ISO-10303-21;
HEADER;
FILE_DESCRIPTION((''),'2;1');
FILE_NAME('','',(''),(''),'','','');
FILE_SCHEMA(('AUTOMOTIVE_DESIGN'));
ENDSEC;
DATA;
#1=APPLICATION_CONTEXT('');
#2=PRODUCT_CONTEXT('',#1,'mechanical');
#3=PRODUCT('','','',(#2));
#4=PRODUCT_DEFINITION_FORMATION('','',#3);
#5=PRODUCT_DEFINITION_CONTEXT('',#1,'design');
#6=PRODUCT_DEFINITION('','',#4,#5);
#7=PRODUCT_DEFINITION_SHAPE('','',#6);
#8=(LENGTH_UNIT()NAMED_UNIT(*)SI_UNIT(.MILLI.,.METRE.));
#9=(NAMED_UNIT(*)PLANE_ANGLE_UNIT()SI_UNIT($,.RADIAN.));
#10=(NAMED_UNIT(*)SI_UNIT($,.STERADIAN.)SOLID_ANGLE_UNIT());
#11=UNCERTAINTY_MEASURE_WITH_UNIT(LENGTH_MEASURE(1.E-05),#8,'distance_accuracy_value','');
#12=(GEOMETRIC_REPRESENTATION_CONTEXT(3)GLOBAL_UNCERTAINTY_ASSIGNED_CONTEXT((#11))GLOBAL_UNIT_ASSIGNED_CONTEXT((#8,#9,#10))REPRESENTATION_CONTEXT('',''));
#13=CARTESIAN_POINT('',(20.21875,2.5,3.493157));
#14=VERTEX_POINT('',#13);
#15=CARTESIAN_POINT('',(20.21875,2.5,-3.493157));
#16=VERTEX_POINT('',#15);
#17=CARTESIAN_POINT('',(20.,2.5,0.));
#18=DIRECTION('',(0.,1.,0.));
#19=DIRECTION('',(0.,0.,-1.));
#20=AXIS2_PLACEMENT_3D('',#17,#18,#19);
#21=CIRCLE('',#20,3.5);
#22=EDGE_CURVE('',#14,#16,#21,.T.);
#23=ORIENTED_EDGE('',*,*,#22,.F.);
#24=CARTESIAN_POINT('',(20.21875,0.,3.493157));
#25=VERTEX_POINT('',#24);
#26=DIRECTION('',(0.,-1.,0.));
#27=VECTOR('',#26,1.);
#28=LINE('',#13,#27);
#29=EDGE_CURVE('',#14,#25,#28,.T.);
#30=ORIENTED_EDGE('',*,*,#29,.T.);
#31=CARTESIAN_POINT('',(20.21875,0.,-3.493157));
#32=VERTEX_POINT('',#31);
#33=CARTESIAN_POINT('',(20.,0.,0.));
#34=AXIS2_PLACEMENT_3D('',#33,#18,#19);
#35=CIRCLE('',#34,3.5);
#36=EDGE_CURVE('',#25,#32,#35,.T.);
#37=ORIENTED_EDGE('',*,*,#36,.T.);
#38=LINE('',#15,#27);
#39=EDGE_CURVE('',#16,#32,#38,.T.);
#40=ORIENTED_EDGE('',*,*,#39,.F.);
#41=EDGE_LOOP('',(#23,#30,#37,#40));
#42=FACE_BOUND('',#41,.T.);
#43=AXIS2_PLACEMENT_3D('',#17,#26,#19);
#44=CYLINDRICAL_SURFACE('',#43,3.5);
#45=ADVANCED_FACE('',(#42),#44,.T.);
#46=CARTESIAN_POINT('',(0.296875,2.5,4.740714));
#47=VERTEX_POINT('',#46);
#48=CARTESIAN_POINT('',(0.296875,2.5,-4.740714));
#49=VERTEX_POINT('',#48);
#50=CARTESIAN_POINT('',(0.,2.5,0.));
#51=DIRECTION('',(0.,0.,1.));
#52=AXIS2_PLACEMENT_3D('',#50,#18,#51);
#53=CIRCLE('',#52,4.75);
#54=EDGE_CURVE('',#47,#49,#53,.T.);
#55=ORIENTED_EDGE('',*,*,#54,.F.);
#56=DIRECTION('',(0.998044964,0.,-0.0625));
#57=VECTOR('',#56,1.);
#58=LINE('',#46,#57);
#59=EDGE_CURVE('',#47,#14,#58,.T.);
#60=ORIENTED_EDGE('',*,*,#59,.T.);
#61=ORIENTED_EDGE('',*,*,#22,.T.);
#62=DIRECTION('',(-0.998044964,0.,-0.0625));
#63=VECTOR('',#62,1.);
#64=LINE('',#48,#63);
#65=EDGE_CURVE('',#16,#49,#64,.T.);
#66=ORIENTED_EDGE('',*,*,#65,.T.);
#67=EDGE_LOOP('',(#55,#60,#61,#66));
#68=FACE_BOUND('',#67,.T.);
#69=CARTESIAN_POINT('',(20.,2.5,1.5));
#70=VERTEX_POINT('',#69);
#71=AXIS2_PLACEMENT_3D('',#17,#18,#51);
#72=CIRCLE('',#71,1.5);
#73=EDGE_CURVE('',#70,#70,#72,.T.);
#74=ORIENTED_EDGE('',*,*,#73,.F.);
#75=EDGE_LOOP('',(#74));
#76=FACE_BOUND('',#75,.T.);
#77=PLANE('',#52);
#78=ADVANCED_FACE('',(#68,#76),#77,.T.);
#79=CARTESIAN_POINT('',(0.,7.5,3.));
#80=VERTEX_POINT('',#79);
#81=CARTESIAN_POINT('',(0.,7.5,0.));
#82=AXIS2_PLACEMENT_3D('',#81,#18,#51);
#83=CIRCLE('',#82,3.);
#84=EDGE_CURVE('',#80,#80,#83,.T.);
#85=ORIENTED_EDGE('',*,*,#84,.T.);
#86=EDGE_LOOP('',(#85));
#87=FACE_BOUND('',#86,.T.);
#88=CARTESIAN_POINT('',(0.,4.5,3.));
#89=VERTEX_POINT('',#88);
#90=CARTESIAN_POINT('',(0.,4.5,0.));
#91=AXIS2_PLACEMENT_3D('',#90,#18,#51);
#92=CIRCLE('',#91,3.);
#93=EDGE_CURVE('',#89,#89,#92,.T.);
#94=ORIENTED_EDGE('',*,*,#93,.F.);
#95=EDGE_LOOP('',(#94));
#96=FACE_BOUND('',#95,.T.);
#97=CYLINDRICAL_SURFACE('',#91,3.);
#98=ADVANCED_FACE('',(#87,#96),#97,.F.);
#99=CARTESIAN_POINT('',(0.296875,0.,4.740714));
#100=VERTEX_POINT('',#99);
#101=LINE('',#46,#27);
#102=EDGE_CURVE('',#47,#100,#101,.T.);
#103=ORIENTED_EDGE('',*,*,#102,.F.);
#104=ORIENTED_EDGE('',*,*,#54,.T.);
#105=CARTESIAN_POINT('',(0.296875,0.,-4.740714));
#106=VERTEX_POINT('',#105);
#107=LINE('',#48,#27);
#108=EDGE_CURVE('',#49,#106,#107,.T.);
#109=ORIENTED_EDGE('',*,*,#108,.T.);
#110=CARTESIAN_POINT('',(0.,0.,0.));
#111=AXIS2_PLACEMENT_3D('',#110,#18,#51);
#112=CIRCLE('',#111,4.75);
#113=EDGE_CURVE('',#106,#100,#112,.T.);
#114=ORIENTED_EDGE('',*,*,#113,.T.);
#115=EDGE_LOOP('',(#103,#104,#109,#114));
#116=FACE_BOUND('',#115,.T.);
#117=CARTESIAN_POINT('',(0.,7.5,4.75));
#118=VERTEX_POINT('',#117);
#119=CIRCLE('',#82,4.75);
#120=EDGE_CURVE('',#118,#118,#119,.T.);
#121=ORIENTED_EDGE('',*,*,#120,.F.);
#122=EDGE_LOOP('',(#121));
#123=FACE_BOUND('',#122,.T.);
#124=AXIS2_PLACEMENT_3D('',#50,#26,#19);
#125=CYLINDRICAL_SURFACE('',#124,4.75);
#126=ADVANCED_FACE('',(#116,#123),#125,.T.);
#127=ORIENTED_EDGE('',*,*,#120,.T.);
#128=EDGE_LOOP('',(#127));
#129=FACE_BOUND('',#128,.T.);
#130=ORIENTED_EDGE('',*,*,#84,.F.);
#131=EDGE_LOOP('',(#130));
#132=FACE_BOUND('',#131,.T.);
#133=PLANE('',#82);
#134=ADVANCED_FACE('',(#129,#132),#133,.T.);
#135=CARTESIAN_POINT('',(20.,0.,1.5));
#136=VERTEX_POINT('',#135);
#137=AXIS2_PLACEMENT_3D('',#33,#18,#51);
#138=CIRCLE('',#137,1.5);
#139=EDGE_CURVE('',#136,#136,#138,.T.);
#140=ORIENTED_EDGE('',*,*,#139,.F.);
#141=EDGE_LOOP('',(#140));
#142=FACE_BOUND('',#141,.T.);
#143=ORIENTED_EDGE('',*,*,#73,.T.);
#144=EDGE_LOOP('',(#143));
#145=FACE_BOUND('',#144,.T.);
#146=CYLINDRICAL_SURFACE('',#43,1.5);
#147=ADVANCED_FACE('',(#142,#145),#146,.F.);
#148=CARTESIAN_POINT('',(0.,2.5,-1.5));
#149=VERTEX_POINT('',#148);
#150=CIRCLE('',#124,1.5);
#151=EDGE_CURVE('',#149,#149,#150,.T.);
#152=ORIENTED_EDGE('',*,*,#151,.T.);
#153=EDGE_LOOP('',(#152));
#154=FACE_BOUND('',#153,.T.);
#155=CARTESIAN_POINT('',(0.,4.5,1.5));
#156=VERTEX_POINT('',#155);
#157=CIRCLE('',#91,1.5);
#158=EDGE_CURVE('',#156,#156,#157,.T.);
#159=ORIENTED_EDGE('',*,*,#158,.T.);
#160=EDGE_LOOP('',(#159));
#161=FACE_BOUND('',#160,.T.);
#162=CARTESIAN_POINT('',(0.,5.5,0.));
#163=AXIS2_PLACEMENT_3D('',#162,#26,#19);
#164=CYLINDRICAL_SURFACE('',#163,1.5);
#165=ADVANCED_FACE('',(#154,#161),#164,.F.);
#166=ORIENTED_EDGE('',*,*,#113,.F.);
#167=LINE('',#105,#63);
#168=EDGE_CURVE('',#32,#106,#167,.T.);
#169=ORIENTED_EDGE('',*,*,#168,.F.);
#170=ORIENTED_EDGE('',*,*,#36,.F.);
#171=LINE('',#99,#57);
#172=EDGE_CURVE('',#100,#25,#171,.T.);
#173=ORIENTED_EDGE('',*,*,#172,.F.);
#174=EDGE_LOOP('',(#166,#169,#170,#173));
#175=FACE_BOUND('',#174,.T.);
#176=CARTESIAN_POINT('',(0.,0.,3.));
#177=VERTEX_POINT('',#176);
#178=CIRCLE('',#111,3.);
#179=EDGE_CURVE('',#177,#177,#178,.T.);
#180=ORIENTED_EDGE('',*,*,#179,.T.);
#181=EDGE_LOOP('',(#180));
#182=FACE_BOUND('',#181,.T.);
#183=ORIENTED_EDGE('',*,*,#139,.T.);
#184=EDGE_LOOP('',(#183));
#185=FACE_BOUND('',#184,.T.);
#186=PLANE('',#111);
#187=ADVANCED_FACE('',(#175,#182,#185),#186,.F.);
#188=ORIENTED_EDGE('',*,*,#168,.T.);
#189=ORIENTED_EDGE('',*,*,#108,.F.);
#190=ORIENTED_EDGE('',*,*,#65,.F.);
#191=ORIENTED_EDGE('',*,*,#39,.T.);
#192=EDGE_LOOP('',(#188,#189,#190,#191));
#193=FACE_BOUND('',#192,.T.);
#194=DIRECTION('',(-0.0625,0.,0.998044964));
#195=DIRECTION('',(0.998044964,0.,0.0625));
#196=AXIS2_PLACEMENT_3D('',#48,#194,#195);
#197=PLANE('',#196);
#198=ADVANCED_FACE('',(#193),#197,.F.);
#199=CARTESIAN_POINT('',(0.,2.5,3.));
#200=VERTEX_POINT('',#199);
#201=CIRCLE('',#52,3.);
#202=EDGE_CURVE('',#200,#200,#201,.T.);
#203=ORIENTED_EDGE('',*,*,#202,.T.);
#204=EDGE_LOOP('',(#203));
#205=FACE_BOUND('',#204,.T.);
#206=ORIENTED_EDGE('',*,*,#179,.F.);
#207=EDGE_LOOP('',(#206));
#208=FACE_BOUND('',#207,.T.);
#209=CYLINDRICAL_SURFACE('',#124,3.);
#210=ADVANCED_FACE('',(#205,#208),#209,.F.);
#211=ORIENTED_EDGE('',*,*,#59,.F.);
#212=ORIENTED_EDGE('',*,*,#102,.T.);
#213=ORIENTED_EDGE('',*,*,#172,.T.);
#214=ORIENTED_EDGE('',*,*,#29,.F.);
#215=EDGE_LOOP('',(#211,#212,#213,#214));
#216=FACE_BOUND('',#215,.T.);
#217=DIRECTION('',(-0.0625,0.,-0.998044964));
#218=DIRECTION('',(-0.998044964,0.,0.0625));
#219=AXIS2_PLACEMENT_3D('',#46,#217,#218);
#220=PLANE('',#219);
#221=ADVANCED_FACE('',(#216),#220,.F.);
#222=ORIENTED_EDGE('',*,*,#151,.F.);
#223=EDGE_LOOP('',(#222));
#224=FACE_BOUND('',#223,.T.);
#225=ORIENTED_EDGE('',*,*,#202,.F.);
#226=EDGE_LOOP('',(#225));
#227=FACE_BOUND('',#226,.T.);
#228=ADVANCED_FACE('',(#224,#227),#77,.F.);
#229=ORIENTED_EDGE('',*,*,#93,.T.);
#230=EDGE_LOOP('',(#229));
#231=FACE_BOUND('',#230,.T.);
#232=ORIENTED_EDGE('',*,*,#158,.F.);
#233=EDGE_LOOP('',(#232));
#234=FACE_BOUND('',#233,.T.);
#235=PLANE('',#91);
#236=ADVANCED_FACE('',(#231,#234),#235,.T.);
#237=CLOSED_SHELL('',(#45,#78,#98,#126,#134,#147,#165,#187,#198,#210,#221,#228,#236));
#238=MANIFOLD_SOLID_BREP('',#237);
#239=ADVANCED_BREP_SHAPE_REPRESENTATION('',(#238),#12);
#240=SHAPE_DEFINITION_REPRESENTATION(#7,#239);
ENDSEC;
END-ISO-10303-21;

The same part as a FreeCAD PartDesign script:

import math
import FreeCAD as App
import Part
import Sketcher
from FreeCAD import Vector

doc = App.newDocument("Part")
body = doc.addObject("PartDesign::Body", "Body")

sketch1 = doc.addObject("Sketcher::SketchObject", "Sketch")
body.addObject(sketch1)
sketch1.AttachmentSupport = (doc.XZ_Plane, [""])
sketch1.MapMode = "FlatFace"
sketch1.addGeometry(Part.LineSegment(Vector(20.2, -3.5, 0), Vector(0.3, -4.7, 0)), False)
sketch1.addGeometry(Part.ArcOfCircle(Part.Circle(Vector(0, 0, 0), Vector(0, 0, 1), 4.8), math.radians(86), math.radians(274)), False)
sketch1.addGeometry(Part.LineSegment(Vector(0.3, 4.7, 0), Vector(20.2, 3.5, 0)), False)
sketch1.addGeometry(Part.ArcOfCircle(Part.Circle(Vector(20, 0, 0), Vector(0, 0, 1), 3.5), math.radians(-86), math.radians(86)), False)
sketch1.addGeometry(Part.Circle(Vector(20, 0, 0), Vector(0, 0, 1), 1.5), False)
sketch1.addGeometry(Part.Circle(Vector(0, 0, 0), Vector(0, 0, 1), 3), False)
sketch1.addConstraint(Sketcher.Constraint("Tangent", 0, 2, 1, 2))
sketch1.addConstraint(Sketcher.Constraint("Tangent", 1, 1, 2, 1))
sketch1.addConstraint(Sketcher.Constraint("Tangent", 2, 2, 3, 2))
sketch1.addConstraint(Sketcher.Constraint("Tangent", 3, 1, 0, 1))
sketch1.addConstraint(Sketcher.Constraint("Coincident", 1, 3, -1, 1))
sketch1.addConstraint(Sketcher.Constraint("Coincident", 5, 3, -1, 1))
sketch1.addConstraint(Sketcher.Constraint("Coincident", 4, 3, 3, 3))
sketch1.addConstraint(Sketcher.Constraint("PointOnObject", 3, 3, -1))
sketch1.addConstraint(Sketcher.Constraint("Diameter", 4, 3.0))
sketch1.addConstraint(Sketcher.Constraint("Diameter", 5, 6.0))
sketch1.addConstraint(Sketcher.Constraint("Radius", 3, 3.5))
sketch1.addConstraint(Sketcher.Constraint("Radius", 1, 4.75))
sketch1.addConstraint(Sketcher.Constraint("DistanceX", -1, 1, 3, 3, 20.0))
pad1 = doc.addObject("PartDesign::Pad", "Pad")
body.addObject(pad1)
pad1.Profile = sketch1
pad1.Length = 2.5
pad1.Reversed = True

sketch2 = doc.addObject("Sketcher::SketchObject", "Sketch001")
body.addObject(sketch2)
sketch2.AttachmentSupport = (doc.XZ_Plane, [""])
sketch2.MapMode = "FlatFace"
sketch2.AttachmentOffset = App.Placement(Vector(0, 0, -2.5), App.Rotation())
sketch2.addGeometry(Part.Circle(Vector(0, 0, 0), Vector(0, 0, 1), 4.8), False)
sketch2.addConstraint(Sketcher.Constraint("Coincident", 0, 3, -1, 1))
sketch2.addConstraint(Sketcher.Constraint("Diameter", 0, 9.5))
pad2 = doc.addObject("PartDesign::Pad", "Pad001")
body.addObject(pad2)
pad2.Profile = sketch2
pad2.Length = 5
pad2.Reversed = True

sketch3 = doc.addObject("Sketcher::SketchObject", "Sketch002")
body.addObject(sketch3)
sketch3.AttachmentSupport = (doc.XZ_Plane, [""])
sketch3.MapMode = "FlatFace"
sketch3.AttachmentOffset = App.Placement(Vector(0, 0, -4.5), App.Rotation())
sketch3.addGeometry(Part.Circle(Vector(0, 0, 0), Vector(0, 0, 1), 3), False)
sketch3.addConstraint(Sketcher.Constraint("Coincident", 0, 3, -1, 1))
sketch3.addConstraint(Sketcher.Constraint("Diameter", 0, 6.0))
pocket1 = doc.addObject("PartDesign::Pocket", "Pocket")
body.addObject(pocket1)
pocket1.Profile = sketch3
pocket1.Length = 3

sketch4 = doc.addObject("Sketcher::SketchObject", "Sketch003")
body.addObject(sketch4)
sketch4.AttachmentSupport = (doc.XZ_Plane, [""])
sketch4.MapMode = "FlatFace"
sketch4.AttachmentOffset = App.Placement(Vector(0, 0, -2.5), App.Rotation())
sketch4.addGeometry(Part.Circle(Vector(0, 0, 0), Vector(0, 0, 1), 1.5), False)
sketch4.addConstraint(Sketcher.Constraint("Coincident", 0, 3, -1, 1))
sketch4.addConstraint(Sketcher.Constraint("Diameter", 0, 3.0))
pocket2 = doc.addObject("PartDesign::Pocket", "Pocket001")
body.addObject(pocket2)
pocket2.Profile = sketch4
pocket2.Length = 3

doc.recompute()
